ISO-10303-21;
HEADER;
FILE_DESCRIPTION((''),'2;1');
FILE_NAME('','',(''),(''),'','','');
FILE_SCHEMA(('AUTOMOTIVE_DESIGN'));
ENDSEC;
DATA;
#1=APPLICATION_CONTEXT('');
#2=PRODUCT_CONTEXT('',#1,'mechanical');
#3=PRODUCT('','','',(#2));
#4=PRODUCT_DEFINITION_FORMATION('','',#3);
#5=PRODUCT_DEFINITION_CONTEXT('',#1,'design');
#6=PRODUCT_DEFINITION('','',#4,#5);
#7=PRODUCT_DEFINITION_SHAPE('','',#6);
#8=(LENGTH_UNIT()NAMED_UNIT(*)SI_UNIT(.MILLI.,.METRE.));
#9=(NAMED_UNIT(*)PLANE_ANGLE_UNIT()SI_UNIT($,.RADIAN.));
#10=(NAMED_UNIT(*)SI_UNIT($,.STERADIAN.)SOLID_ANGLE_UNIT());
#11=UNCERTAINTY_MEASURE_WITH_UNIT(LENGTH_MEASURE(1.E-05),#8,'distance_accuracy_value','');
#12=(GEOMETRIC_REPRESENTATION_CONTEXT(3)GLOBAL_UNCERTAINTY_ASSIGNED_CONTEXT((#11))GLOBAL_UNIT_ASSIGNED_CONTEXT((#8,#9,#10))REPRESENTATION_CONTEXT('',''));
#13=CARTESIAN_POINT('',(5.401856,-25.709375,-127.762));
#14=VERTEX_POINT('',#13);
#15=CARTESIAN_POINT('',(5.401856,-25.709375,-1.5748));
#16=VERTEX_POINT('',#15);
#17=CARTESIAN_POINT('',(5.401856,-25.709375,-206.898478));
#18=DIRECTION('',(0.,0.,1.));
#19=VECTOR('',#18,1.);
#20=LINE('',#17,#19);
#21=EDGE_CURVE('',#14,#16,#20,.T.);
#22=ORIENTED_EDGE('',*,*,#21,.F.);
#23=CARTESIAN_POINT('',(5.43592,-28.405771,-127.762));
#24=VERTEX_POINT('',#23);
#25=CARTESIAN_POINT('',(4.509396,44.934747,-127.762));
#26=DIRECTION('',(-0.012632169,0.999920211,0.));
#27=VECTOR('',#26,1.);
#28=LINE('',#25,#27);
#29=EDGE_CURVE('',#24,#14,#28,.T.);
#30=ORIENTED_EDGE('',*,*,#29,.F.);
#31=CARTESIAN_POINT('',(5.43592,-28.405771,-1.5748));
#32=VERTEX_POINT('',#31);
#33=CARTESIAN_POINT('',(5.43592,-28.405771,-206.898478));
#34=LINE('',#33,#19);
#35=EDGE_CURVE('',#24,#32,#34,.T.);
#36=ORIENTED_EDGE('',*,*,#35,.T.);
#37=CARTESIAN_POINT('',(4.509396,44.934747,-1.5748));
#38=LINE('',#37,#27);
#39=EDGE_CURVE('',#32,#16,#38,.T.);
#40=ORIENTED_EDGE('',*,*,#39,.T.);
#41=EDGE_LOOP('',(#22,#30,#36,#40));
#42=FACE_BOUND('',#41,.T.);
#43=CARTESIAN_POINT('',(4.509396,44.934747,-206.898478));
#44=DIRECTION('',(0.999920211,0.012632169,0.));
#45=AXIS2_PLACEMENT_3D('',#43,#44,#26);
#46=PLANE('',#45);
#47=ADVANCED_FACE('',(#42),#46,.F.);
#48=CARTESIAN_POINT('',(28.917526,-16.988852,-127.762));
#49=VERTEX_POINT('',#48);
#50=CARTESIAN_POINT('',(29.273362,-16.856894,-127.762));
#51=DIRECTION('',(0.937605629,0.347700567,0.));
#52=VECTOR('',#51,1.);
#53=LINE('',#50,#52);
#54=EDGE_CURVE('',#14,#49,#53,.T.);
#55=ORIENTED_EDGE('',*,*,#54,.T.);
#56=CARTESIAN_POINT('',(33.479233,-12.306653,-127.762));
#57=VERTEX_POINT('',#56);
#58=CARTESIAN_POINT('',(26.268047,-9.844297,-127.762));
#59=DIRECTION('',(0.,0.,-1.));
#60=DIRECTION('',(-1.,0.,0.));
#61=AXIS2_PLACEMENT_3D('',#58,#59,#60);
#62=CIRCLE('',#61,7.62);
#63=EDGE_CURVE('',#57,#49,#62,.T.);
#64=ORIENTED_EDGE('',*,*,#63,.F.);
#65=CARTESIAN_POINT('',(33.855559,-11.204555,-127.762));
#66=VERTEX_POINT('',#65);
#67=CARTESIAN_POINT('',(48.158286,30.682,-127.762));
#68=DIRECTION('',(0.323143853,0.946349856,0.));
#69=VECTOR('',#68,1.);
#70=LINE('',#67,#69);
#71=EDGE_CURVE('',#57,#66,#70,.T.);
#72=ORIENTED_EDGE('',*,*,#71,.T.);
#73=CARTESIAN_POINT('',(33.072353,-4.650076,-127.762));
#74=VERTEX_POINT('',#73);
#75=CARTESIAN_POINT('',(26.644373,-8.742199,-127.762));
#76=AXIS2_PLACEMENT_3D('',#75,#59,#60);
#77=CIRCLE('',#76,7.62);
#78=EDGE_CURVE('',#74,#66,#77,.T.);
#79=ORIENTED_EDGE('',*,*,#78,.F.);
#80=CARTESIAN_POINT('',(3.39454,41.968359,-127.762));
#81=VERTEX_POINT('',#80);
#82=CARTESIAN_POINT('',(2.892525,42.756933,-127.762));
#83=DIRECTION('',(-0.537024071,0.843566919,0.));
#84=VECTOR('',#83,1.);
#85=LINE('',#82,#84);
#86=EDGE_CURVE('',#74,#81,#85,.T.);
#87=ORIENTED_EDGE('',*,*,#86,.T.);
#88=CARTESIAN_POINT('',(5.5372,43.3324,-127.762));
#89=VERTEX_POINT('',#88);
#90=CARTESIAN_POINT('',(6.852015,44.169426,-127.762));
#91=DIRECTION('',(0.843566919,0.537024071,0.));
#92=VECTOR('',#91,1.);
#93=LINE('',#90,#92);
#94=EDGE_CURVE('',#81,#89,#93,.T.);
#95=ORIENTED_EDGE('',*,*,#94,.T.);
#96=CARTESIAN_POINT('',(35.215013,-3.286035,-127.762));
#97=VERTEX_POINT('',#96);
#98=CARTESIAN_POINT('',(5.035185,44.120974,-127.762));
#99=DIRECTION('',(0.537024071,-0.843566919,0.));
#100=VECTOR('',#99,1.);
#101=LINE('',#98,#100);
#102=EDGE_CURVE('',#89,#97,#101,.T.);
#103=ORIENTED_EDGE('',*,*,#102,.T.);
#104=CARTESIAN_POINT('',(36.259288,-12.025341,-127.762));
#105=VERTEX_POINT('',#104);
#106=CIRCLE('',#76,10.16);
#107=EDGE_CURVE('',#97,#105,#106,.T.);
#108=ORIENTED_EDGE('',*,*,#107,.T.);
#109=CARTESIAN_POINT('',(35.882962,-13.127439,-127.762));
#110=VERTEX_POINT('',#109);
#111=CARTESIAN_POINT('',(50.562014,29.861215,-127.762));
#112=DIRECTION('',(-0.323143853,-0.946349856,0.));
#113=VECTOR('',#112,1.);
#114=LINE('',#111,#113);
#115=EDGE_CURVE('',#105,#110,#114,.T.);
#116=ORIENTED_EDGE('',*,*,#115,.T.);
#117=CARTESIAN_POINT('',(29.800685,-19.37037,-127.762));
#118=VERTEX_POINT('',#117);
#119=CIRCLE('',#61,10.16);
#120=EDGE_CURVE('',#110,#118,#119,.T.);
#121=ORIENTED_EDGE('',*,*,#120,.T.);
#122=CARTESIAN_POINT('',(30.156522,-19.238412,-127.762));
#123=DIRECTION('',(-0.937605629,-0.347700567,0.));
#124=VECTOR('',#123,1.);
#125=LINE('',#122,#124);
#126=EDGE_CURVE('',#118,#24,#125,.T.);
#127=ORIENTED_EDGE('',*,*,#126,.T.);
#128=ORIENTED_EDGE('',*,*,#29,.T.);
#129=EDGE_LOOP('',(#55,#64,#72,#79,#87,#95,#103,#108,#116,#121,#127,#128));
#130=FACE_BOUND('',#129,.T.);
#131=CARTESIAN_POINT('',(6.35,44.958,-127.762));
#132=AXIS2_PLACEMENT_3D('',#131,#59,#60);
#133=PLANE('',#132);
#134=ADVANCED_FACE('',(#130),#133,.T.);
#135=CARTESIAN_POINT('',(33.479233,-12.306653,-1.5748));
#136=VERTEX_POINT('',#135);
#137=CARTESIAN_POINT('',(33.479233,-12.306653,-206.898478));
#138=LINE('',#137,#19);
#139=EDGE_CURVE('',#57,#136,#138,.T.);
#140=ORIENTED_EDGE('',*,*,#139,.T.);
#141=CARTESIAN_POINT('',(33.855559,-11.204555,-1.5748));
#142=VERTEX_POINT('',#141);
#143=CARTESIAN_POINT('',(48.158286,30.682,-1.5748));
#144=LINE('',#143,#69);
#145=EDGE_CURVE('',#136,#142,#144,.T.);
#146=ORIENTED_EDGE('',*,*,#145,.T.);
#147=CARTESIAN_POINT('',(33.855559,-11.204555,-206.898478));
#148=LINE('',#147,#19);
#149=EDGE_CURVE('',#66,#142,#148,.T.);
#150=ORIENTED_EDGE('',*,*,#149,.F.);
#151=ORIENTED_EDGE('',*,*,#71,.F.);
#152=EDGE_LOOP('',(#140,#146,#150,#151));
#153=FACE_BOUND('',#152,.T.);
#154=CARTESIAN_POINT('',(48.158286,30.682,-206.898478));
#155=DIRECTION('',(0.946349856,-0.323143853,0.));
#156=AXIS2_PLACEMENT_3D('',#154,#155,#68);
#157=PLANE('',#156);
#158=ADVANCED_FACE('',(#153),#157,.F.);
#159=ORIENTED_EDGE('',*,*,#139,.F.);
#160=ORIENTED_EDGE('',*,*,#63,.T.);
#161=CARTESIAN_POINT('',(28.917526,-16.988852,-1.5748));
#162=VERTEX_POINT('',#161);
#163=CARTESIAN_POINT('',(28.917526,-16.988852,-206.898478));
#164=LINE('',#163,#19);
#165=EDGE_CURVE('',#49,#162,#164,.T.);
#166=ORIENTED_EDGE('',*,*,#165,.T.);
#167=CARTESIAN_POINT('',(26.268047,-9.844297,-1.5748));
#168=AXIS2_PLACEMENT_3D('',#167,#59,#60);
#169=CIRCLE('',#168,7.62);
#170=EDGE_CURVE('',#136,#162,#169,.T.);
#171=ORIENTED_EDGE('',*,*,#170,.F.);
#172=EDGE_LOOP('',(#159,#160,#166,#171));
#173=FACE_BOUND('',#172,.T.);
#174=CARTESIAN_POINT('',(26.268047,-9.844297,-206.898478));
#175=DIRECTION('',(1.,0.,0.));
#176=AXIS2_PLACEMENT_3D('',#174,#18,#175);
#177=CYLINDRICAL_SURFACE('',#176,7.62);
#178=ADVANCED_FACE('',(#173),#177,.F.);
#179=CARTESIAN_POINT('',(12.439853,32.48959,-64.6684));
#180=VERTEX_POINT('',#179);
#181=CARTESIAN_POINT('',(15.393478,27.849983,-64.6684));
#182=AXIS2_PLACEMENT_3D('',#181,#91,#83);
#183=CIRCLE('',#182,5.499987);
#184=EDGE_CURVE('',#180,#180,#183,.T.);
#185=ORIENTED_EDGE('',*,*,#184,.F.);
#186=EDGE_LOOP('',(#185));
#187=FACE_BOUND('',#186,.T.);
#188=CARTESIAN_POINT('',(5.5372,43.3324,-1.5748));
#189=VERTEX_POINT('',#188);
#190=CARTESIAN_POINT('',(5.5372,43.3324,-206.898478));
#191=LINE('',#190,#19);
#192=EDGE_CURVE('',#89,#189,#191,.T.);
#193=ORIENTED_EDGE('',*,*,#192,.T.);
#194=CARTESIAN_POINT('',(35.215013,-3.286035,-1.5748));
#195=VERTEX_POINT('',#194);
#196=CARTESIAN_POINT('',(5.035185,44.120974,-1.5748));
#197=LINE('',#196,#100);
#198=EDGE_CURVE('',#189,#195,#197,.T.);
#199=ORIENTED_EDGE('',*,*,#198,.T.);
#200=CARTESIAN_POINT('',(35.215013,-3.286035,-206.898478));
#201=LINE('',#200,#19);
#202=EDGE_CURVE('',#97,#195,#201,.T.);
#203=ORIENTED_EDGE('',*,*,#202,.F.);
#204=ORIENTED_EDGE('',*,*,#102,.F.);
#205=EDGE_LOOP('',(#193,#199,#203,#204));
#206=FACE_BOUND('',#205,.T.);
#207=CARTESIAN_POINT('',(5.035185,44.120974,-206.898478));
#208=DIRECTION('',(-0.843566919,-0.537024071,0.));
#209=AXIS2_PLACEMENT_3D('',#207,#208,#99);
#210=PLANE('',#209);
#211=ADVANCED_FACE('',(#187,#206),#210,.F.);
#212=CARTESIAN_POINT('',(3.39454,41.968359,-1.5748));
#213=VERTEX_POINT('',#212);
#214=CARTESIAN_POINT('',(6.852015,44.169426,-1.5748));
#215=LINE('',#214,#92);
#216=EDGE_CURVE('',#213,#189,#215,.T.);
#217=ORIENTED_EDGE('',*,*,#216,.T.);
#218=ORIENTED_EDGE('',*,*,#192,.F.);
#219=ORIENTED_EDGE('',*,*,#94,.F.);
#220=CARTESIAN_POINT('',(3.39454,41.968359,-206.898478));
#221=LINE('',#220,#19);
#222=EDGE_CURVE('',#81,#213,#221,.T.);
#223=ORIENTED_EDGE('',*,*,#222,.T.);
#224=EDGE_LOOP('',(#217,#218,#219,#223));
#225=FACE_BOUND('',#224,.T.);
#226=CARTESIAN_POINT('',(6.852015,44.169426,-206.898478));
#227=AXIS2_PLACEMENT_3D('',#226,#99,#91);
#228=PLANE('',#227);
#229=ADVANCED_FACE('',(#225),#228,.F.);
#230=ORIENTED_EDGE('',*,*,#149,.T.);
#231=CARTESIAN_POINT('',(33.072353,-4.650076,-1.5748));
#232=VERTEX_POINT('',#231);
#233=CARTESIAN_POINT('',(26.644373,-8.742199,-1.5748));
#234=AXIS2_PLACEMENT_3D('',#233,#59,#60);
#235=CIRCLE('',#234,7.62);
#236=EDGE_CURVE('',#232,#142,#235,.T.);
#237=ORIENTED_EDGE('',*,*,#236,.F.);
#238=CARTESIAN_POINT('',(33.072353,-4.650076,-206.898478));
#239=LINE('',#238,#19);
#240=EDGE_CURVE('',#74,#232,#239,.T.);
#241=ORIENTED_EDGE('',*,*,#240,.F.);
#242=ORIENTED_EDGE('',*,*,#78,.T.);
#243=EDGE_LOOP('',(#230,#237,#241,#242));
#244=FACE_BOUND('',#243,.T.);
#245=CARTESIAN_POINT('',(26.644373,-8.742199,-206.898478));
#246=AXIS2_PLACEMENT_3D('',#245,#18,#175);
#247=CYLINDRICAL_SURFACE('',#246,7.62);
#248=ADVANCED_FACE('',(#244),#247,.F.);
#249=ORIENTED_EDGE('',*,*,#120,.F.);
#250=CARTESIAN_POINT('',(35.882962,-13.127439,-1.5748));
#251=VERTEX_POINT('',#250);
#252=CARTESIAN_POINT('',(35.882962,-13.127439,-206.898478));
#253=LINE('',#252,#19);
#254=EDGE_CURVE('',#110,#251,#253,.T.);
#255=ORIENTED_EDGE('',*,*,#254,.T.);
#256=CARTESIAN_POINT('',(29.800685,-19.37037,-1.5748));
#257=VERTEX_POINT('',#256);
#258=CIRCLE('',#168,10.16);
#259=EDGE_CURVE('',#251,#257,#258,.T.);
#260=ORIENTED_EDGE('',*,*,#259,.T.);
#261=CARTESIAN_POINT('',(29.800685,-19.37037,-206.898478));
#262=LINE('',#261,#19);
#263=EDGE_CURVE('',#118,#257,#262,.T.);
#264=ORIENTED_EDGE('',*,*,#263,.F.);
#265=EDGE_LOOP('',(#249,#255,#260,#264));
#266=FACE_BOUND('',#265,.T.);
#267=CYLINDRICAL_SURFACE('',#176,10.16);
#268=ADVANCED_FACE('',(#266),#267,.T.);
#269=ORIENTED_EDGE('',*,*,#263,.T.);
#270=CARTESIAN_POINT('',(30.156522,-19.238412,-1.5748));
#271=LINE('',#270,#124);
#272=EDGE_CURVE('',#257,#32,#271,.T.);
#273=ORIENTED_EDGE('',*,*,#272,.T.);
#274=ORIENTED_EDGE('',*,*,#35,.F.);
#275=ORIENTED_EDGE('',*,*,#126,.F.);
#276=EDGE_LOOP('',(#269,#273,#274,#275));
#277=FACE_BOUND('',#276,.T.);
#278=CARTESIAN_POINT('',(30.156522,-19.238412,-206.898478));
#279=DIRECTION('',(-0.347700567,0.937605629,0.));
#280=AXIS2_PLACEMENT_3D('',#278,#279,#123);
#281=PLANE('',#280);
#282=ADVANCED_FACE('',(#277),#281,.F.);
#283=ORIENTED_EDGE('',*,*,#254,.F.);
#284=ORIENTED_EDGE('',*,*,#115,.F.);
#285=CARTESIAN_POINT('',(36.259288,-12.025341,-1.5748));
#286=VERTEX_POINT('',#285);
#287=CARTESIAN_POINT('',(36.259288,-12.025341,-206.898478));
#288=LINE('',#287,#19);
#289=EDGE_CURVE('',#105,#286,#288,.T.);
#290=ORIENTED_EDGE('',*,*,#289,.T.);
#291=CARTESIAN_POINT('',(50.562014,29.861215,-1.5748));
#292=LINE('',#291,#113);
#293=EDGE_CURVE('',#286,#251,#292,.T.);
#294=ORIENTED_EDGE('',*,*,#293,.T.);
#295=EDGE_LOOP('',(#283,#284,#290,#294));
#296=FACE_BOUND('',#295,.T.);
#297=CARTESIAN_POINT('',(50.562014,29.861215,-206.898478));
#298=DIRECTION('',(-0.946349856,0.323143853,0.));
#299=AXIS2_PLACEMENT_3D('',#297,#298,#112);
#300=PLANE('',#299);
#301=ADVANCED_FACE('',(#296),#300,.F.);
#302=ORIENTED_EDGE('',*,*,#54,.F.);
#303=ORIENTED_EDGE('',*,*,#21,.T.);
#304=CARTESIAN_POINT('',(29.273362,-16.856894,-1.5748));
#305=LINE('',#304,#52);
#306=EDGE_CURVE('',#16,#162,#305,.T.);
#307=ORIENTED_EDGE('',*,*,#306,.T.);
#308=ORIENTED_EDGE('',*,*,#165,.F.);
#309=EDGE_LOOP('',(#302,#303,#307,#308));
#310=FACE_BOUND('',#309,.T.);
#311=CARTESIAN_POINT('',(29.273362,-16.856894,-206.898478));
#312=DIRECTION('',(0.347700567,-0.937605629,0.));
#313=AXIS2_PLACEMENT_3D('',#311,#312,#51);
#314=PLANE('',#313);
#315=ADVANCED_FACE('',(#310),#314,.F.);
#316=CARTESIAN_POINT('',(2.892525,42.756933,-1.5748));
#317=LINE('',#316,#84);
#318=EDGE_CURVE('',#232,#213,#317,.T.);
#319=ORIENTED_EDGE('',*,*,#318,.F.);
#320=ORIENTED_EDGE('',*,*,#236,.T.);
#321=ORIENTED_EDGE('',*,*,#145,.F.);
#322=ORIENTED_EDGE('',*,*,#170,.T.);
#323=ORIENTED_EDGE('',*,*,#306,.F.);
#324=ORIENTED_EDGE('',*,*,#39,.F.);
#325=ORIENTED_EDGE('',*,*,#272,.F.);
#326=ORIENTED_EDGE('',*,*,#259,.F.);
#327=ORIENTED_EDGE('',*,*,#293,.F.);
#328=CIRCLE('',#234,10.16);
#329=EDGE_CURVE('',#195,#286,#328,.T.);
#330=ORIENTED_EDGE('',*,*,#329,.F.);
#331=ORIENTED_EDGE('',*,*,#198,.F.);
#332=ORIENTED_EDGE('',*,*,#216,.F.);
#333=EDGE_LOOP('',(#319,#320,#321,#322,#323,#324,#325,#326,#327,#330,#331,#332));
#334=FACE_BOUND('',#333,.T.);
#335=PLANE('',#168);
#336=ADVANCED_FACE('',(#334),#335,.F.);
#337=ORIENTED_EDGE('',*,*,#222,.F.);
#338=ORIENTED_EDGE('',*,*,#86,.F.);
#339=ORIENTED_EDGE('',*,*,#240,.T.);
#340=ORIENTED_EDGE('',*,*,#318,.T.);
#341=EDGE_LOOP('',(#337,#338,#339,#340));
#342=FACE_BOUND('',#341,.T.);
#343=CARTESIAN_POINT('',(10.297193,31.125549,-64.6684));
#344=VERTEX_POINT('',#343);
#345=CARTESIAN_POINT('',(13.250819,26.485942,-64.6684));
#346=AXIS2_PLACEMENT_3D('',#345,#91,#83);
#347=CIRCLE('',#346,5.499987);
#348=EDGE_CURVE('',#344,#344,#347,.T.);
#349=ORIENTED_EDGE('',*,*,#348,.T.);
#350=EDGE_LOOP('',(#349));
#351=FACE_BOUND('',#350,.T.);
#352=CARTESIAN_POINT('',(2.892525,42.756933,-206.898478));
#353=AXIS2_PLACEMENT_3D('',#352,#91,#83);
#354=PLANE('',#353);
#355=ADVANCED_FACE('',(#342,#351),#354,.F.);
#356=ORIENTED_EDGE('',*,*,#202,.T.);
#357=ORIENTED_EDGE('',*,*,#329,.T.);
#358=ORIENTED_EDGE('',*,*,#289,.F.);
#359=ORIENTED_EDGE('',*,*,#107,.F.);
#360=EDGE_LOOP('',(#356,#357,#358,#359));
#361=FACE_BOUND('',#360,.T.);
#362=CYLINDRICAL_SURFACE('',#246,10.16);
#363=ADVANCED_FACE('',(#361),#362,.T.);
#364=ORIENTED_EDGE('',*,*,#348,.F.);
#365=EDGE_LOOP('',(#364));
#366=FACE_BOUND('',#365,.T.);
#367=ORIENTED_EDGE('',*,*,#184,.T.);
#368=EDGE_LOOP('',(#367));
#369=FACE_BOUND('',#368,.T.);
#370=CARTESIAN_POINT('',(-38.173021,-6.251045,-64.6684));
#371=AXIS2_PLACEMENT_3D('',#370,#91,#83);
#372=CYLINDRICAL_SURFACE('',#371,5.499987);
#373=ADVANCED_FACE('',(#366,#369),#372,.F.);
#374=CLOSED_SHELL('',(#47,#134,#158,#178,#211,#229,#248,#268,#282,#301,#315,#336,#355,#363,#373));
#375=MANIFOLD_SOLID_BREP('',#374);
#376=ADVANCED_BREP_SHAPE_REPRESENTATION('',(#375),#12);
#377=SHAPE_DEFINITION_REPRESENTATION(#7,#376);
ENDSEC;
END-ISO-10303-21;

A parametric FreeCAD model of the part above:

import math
import FreeCAD as App
import Part
import Sketcher

V = App.Vector
Q = App.Units.Quantity

doc = App.newDocument("Part")
body = doc.addObject("PartDesign::Body", "Body")

sketch1 = body.newObject("Sketcher::SketchObject", "Sketch")
sketch1.AttachmentSupport = (doc.getObject("XY_Plane"), [""])
sketch1.MapMode = "FlatFace"
sketch1.AttachmentOffset = App.Placement(V(0, 0, -0.062 * 25.4), App.Rotation())
sketch1.addGeometry([
    Part.LineSegment(V(35.215013, -3.286035, 0), V(5.5372, 43.3324, 0)),
    Part.LineSegment(V(5.5372, 43.3324, 0), V(3.39454, 41.968359, 0)),
    Part.LineSegment(V(3.39454, 41.968359, 0), V(33.072353, -4.650076, 0)),
    Part.ArcOfCircle(Part.Circle(V(26.644374, -8.742199, 0), V(0, 0, 1), 7.62), math.radians(-18.853159), math.radians(32.481283)),
    Part.LineSegment(V(33.855559, -11.204555, 0), V(33.479233, -12.306653, 0)),
    Part.ArcOfCircle(Part.Circle(V(26.268047, -9.844297, 0), V(0, 0, 1), 7.62), math.radians(-69.653264), math.radians(-18.853159)),
    Part.LineSegment(V(28.917526, -16.988852, 0), V(5.401856, -25.709375, 0)),
    Part.LineSegment(V(5.401856, -25.709375, 0), V(5.43592, -28.405771, 0)),
    Part.LineSegment(V(5.43592, -28.405771, 0), V(29.800685, -19.37037, 0)),
    Part.ArcOfCircle(Part.Circle(V(26.268047, -9.844297, 0), V(0, 0, 1), 10.16), math.radians(-69.653264), math.radians(-18.853159)),
    Part.LineSegment(V(35.882962, -13.127439, 0), V(36.259288, -12.025341, 0)),
    Part.ArcOfCircle(Part.Circle(V(26.644373, -8.742199, 0), V(0, 0, 1), 10.16), math.radians(-18.853159), math.radians(32.481283)),
], False)
sketch1.addConstraint([
    Sketcher.Constraint("Coincident", 0, 2, 1, 1),
    Sketcher.Constraint("Coincident", 1, 2, 2, 1),
    Sketcher.Constraint("Coincident", 2, 2, 3, 2),
    Sketcher.Constraint("Coincident", 3, 1, 4, 1),
    Sketcher.Constraint("Coincident", 4, 2, 5, 2),
    Sketcher.Constraint("Coincident", 5, 1, 6, 1),
    Sketcher.Constraint("Coincident", 6, 2, 7, 1),
    Sketcher.Constraint("Coincident", 7, 2, 8, 1),
    Sketcher.Constraint("Coincident", 8, 2, 9, 1),
    Sketcher.Constraint("Coincident", 9, 2, 10, 1),
    Sketcher.Constraint("Coincident", 10, 2, 11, 1),
    Sketcher.Constraint("Coincident", 11, 2, 0, 1),
    Sketcher.Constraint("Coincident", 9, 3, 5, 3),
    Sketcher.Constraint("Coincident", 11, 3, 3, 3),
    Sketcher.Constraint("Radius", 3, Q("0.3 in")),
    Sketcher.Constraint("Radius", 5, Q("0.3 in")),
    Sketcher.Constraint("Radius", 9, Q("0.4 in")),
    Sketcher.Constraint("Radius", 11, Q("0.4 in")),
    Sketcher.Constraint("Distance", 1, Q("0.1 in")),
    Sketcher.Constraint("DistanceX", -1, 1, 0, 2, Q("0.218 in")),
    Sketcher.Constraint("DistanceY", -1, 1, 0, 2, Q("1.706 in")),
    Sketcher.Constraint("DistanceY", 3, 3, -1, 1, Q("8.742199 mm")),
    Sketcher.Constraint("DistanceY", 5, 1, 4, 2, Q("4.682199 mm")),
    Sketcher.Constraint("Distance", 0, Q("55.26347 mm")),
    Sketcher.Constraint("Distance", 2, Q("55.26347 mm")),
    Sketcher.Constraint("Distance", 7, Q("2.696611 mm")),
    Sketcher.Constraint("DistanceX", -1, 1, 1, 2, Q("3.39454 mm")),
    Sketcher.Constraint("DistanceX", -1, 1, 3, 1, Q("33.855559 mm")),
    Sketcher.Constraint("DistanceX", -1, 1, 7, 2, Q("5.43592 mm")),
    Sketcher.Constraint("DistanceY", 7, 2, -1, 1, Q("28.405771 mm")),
    Sketcher.Constraint("DistanceY", 8, 2, -1, 1, Q("19.37037 mm")),
    Sketcher.Constraint("DistanceX", -1, 1, 9, 2, Q("35.882962 mm")),
    Sketcher.Constraint("DistanceY", 9, 2, -1, 1, Q("13.127439 mm")),
    Sketcher.Constraint("DistanceX", -1, 1, 10, 2, Q("36.259288 mm")),
    Sketcher.Constraint("DistanceY", 10, 2, -1, 1, Q("12.025341 mm")),
    Sketcher.Constraint("DistanceY", 5, 3, 2, 2, Q("5.194221 mm")),
    Sketcher.Constraint("DistanceX", 2, 2, 4, 2, Q("0.40688 mm")),
    Sketcher.Constraint("DistanceX", 6, 2, 5, 1, Q("23.51567 mm")),
])
pad1 = body.newObject("PartDesign::Pad", "Pad")
pad1.Profile = sketch1
pad1.Length = Q("4.968 in")
pad1.Reversed = True

sketch2 = body.newObject("Sketcher::SketchObject", "Sketch001")
sketch2.Placement = App.Placement(V(23.570559, 15.00528, 0), App.Rotation(V(0, 0, -1), V(-0.537024071, 0.843566919, 0), V(0.843566919, 0.537024071, 0), "ZXY"))
sketch2.addGeometry(Part.Circle(V(64.6684, 15.226656, 0), V(0, 0, 1), 5.499987), False)
sketch2.addConstraint([
    Sketcher.Constraint("DistanceX", -1, 1, 0, 3, Q("2.546 in")),
    Sketcher.Constraint("Diameter", 0, Q("10.999974 mm")),
    Sketcher.Constraint("DistanceY", -1, 1, 0, 3, Q("15.226656 mm")),
])
pocket1 = body.newObject("PartDesign::Pocket", "Pocket")
pocket1.Profile = sketch2
pocket1.Length = Q("2.5 in")

doc.recompute()
